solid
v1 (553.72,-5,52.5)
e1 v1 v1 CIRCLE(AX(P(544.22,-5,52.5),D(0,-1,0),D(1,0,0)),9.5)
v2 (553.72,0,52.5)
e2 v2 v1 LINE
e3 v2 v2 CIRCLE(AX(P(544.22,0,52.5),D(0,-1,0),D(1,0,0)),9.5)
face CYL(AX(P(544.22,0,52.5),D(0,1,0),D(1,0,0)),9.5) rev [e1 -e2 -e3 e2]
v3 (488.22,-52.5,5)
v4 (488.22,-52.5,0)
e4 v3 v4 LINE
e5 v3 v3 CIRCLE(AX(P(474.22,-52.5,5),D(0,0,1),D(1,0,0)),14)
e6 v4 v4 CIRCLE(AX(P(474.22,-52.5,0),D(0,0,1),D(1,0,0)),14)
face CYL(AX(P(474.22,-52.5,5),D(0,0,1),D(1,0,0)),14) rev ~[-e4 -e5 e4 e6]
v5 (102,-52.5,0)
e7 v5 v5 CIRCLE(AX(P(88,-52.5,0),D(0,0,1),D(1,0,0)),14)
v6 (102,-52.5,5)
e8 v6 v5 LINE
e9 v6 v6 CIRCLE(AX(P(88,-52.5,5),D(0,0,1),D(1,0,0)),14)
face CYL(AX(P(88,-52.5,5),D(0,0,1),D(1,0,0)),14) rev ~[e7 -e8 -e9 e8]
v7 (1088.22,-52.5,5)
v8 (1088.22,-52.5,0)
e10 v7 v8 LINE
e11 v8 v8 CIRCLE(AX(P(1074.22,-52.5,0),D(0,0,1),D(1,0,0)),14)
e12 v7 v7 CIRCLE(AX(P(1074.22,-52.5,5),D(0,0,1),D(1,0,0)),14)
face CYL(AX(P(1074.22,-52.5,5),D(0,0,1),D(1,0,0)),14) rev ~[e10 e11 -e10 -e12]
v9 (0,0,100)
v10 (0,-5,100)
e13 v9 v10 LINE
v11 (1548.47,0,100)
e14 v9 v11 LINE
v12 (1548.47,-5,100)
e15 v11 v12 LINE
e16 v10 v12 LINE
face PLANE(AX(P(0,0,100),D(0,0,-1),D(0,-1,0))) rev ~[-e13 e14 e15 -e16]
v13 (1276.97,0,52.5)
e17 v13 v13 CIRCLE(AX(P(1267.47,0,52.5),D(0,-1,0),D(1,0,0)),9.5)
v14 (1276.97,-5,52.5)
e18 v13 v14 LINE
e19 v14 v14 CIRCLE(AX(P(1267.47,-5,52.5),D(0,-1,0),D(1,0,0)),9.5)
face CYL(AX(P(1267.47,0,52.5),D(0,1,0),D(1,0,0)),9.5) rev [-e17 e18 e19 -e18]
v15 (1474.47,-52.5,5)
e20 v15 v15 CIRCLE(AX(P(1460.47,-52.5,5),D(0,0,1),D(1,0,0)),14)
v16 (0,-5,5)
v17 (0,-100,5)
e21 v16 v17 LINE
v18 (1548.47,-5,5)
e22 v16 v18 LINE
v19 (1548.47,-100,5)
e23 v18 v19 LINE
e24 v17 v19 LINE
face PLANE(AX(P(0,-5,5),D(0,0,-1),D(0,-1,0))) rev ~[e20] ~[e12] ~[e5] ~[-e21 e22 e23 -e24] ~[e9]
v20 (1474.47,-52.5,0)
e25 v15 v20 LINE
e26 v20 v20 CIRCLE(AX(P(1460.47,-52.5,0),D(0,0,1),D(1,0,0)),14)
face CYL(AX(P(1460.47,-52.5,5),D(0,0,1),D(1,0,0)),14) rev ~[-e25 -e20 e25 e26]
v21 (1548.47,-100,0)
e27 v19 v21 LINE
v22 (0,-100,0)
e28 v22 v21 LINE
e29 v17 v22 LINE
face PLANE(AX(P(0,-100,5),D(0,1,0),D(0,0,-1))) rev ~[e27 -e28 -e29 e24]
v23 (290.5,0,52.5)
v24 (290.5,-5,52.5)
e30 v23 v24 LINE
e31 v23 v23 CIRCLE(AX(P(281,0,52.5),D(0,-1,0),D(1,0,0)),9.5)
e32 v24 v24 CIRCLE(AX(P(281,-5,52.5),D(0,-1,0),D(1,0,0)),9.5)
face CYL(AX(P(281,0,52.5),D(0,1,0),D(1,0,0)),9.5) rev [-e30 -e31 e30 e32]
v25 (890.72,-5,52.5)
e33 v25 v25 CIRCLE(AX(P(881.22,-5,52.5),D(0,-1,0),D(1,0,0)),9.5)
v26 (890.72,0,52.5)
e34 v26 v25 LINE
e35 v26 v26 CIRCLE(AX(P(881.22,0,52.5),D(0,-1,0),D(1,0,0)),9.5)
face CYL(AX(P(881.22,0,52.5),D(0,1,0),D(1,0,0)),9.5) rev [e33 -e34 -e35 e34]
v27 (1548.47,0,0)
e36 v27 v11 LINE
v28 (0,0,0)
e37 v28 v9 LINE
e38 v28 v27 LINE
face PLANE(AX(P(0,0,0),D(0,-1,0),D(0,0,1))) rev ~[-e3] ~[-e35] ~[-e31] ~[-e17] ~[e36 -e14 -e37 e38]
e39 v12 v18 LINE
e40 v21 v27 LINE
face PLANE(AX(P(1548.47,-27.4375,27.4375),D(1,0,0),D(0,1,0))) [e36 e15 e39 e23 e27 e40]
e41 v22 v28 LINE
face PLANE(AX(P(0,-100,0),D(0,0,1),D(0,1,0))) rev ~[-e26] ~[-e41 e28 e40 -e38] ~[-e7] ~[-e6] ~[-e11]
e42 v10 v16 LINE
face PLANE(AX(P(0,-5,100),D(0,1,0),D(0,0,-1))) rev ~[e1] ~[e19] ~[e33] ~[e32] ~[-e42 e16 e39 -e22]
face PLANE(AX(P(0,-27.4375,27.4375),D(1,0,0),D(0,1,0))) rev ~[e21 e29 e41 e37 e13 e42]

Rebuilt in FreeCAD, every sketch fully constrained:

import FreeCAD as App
import Part
import Sketcher

V = App.Vector
Q = App.Units.Quantity

doc = App.newDocument("Part")
body = doc.addObject("PartDesign::Body", "Body")

# Sketch on YZ plane
sketch1 = body.newObject("Sketcher::SketchObject", "Sketch")
sketch1.AttachmentSupport = (doc.getObject("YZ_Plane"), [""])
sketch1.MapMode = "FlatFace"
sketch1.addGeometry(Part.LineSegment(V(0, 0, 0), V(0, 100, 0)), False)
sketch1.addGeometry(Part.LineSegment(V(0, 100, 0), V(-5, 100, 0)), False)
sketch1.addGeometry(Part.LineSegment(V(-5, 100, 0), V(-5, 5, 0)), False)
sketch1.addGeometry(Part.LineSegment(V(-5, 5, 0), V(-100, 5, 0)), False)
sketch1.addGeometry(Part.LineSegment(V(-100, 5, 0), V(-100, 0, 0)), False)
sketch1.addGeometry(Part.LineSegment(V(-100, 0, 0), V(0, 0, 0)), False)
sketch1.addConstraint(Sketcher.Constraint("Coincident", 0, 2, 1, 1))
sketch1.addConstraint(Sketcher.Constraint("Coincident", 1, 2, 2, 1))
sketch1.addConstraint(Sketcher.Constraint("Coincident", 2, 2, 3, 1))
sketch1.addConstraint(Sketcher.Constraint("Coincident", 3, 2, 4, 1))
sketch1.addConstraint(Sketcher.Constraint("Coincident", 4, 2, 5, 1))
sketch1.addConstraint(Sketcher.Constraint("Coincident", 5, 2, 0, 1))
sketch1.addConstraint(Sketcher.Constraint("Vertical", 0))
sketch1.addConstraint(Sketcher.Constraint("Horizontal", 1))
sketch1.addConstraint(Sketcher.Constraint("Vertical", 2))
sketch1.addConstraint(Sketcher.Constraint("Horizontal", 3))
sketch1.addConstraint(Sketcher.Constraint("Vertical", 4))
sketch1.addConstraint(Sketcher.Constraint("Horizontal", 5))
sketch1.addConstraint(Sketcher.Constraint("Coincident", 5, 2, -1, 1))
sketch1.addConstraint(Sketcher.Constraint("Equal", 5, 0))
sketch1.addConstraint(Sketcher.Constraint("Equal", 3, 2))
sketch1.addConstraint(Sketcher.Constraint("DistanceX", 1, 2, 1, 1, Q("5 mm")))
sketch1.addConstraint(Sketcher.Constraint("DistanceX", 3, 2, 3, 1, Q("95 mm")))
pad1 = body.newObject("PartDesign::Pad", "Pad")
pad1.Profile = sketch1
pad1.Length = 1548.47

# Sketch on XY plane
sketch2 = body.newObject("Sketcher::SketchObject", "Sketch001")
sketch2.AttachmentSupport = (doc.getObject("XY_Plane"), [""])
sketch2.MapMode = "FlatFace"
sketch2.AttachmentOffset = App.Placement(V(0, 0, 5), App.Rotation())
sketch2.addGeometry(Part.Circle(V(474.22, -52.5, 0), V(0, 0, 1), 14), False)
sketch2.addGeometry(Part.Circle(V(1074.22, -52.5, 0), V(0, 0, 1), 14), False)
sketch2.addGeometry(Part.Circle(V(1460.47, -52.5, 0), V(0, 0, 1), 14), False)
sketch2.addGeometry(Part.Circle(V(88, -52.5, 0), V(0, 0, 1), 14), False)
sketch2.addConstraint(Sketcher.Constraint("Equal", 0, 1))
sketch2.addConstraint(Sketcher.Constraint("Equal", 1, 2))
sketch2.addConstraint(Sketcher.Constraint("Equal", 2, 3))
sketch2.addConstraint(Sketcher.Constraint("Horizontal", 0, 3, 1, 3))
sketch2.addConstraint(Sketcher.Constraint("Horizontal", 1, 3, 2, 3))
sketch2.addConstraint(Sketcher.Constraint("Horizontal", 2, 3, 3, 3))
sketch2.addConstraint(Sketcher.Constraint("Diameter", 0, Q("28 mm")))
sketch2.addConstraint(Sketcher.Constraint("DistanceX", -1, 1, 3, 3, Q("88 mm")))
sketch2.addConstraint(Sketcher.Constraint("DistanceX", 0, 3, 1, 3, Q("600 mm")))
sketch2.addConstraint(Sketcher.Constraint("DistanceY", 0, 3, -1, 1, Q("52.5 mm")))
sketch2.addConstraint(Sketcher.Constraint("DistanceX", -1, 1, 0, 3, Q("474.22 mm")))
sketch2.addConstraint(Sketcher.Constraint("DistanceX", -1, 1, 2, 3, Q("1460.47 mm")))
pocket1 = body.newObject("PartDesign::Pocket", "Pocket")
pocket1.Profile = sketch2
pocket1.Type = "ThroughAll"

# Sketch on XZ plane
sketch3 = body.newObject("Sketcher::SketchObject", "Sketch002")
sketch3.AttachmentSupport = (doc.getObject("XZ_Plane"), [""])
sketch3.MapMode = "FlatFace"
sketch3.addGeometry(Part.Circle(V(1267.47, 52.5, 0), V(0, 0, 1), 9.5), False)
sketch3.addGeometry(Part.Circle(V(881.22, 52.5, 0), V(0, 0, 1), 9.5), False)
sketch3.addGeometry(Part.Circle(V(544.22, 52.5, 0), V(0, 0, 1), 9.5), False)
sketch3.addGeometry(Part.Circle(V(281, 52.5, 0), V(0, 0, 1), 9.5), False)
sketch3.addConstraint(Sketcher.Constraint("Equal", 0, 1))
sketch3.addConstraint(Sketcher.Constraint("Equal", 1, 2))
sketch3.addConstraint(Sketcher.Constraint("Equal", 2, 3))
sketch3.addConstraint(Sketcher.Constraint("Horizontal", 0, 3, 1, 3))
sketch3.addConstraint(Sketcher.Constraint("Horizontal", 1, 3, 2, 3))
sketch3.addConstraint(Sketcher.Constraint("Horizontal", 2, 3, 3, 3))
sketch3.addConstraint(Sketcher.Constraint("Diameter", 0, Q("19 mm")))
sketch3.addConstraint(Sketcher.Constraint("DistanceX", -1, 1, 3, 3, Q("281 mm")))
sketch3.addConstraint(Sketcher.Constraint("DistanceX", 2, 3, 1, 3, Q("337 mm")))
sketch3.addConstraint(Sketcher.Constraint("DistanceY", -1, 1, 0, 3, Q("52.5 mm")))
sketch3.addConstraint(Sketcher.Constraint("DistanceX", -1, 1, 0, 3, Q("1267.47 mm")))
sketch3.addConstraint(Sketcher.Constraint("DistanceX", -1, 1, 1, 3, Q("881.22 mm")))
pocket2 = body.newObject("PartDesign::Pocket", "Pocket001")
pocket2.Profile = sketch3
pocket2.Type = "ThroughAll"
pocket2.Reversed = True

doc.recompute()
